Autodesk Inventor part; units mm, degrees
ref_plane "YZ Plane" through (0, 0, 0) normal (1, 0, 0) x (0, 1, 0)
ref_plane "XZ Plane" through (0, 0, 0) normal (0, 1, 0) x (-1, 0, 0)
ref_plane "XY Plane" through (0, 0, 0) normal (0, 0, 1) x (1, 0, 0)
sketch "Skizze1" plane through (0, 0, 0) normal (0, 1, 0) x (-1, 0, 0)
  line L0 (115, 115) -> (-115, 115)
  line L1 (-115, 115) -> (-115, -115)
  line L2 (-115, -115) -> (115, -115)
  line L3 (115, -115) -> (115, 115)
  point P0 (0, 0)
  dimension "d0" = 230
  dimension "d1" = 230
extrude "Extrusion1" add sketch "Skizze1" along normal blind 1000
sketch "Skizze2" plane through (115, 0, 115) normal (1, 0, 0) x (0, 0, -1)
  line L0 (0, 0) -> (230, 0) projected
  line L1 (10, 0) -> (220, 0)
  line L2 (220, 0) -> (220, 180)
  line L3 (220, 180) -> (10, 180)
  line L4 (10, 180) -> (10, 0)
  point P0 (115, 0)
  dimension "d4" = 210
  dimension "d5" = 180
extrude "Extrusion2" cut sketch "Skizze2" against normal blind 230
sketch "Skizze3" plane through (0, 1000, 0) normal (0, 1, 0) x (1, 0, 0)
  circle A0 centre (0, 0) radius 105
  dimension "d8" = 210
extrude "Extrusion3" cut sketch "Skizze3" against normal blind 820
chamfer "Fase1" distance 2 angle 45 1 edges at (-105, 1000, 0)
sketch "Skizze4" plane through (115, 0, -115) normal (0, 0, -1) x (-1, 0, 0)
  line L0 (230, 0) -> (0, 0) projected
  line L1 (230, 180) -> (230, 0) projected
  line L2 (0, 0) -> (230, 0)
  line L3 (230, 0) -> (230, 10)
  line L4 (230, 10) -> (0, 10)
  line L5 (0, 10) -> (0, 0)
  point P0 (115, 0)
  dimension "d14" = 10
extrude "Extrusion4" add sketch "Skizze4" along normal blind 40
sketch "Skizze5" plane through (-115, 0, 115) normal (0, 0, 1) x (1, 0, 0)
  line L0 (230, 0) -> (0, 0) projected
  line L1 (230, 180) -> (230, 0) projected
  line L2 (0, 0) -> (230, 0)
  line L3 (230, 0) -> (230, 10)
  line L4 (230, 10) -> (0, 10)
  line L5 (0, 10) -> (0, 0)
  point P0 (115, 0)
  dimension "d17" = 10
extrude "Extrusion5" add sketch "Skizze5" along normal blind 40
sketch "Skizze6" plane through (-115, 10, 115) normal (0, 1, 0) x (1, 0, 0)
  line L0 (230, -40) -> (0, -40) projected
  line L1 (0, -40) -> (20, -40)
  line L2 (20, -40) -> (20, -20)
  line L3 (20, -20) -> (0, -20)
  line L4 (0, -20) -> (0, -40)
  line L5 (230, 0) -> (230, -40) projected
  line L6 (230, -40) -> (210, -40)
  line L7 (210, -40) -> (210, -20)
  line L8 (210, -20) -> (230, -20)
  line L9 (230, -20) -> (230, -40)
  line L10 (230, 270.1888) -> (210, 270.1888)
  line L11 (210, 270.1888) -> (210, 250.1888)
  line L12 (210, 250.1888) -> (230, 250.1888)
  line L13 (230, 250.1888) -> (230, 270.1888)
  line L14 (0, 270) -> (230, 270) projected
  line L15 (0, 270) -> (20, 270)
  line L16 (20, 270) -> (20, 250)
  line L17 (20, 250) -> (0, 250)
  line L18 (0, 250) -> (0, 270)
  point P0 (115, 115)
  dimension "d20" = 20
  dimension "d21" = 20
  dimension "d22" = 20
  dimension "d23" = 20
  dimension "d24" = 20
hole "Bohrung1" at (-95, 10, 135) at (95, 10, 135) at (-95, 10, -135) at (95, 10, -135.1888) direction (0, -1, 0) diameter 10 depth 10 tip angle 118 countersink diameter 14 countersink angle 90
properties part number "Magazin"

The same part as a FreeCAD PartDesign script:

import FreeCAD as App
import Part
import Sketcher
Q = App.Units.Quantity


def edges_at(feature, points):
    """Names of the edges that pass closest to the given points."""
    edges = feature.Shape.Edges
    near = lambda p: min(range(len(edges)), key=lambda i: edges[i].distToShape(Part.Vertex(*p))[0])
    return sorted({f"Edge{near(p) + 1}" for p in points})


def add_polygon(sketch, points):
    """Adds a closed chain of lines whose ends are joined by coincident constraints."""
    first, n = sketch.GeometryCount, len(points)
    for a, b in zip(points, points[1:] + points[:1]):
        sketch.addGeometry(Part.LineSegment(App.Vector(*a, 0), App.Vector(*b, 0)), False)
    for i in range(n):
        sketch.addConstraint(Sketcher.Constraint("Coincident", first + i, 2, first + (i + 1) % n, 1))

doc = App.newDocument("Part")
params = doc.addObject("Spreadsheet::Sheet", "Params")
for row, (alias, value) in enumerate([
    ("sketch1_width", "230 mm"),
    ("pad1_length", "1000 mm"),
    ("sketch2_width", "180 mm"),
    ("sketch2_height", "210 mm"),
    ("pocket1_length", "230 mm"),
    ("sketch3_diameter", "210 mm"),
    ("pocket2_length", "820 mm"),
    ("chamfer_size", "2 mm"),
    ("sketch4_height", "10 mm"),
    ("sketch4_width", "230 mm"),
    ("pad2_length", "40 mm"),
    ("sketch5_height", "10 mm"),
    ("sketch5_width", "230 mm"),
    ("pad3_length", "40 mm"),
    ("sketch6_diameter", "10 mm"),
    ("hole_diameter", "10 mm"),
    ("hole_depth", "10 mm"),
    ("hole_csink_diameter", "14 mm"),
], start=1):
    params.set(f"A{row}", alias)
    params.set(f"B{row}", "=" + value)
    params.setAlias(f"B{row}", alias)

body = doc.addObject("PartDesign::Body", "Body")

sketch1 = body.newObject("Sketcher::SketchObject", "Sketch")
sketch1.AttachmentSupport = (doc.getObject("XZ_Plane"), [""])
sketch1.MapMode = "FlatFace"
add_polygon(sketch1, [(-115, -115), (-115, 115), (115, 115), (115, -115)])
sketch1.addConstraint(Sketcher.Constraint("Vertical", 0))
sketch1.addConstraint(Sketcher.Constraint("Horizontal", 1))
sketch1.addConstraint(Sketcher.Constraint("Vertical", 2))
sketch1.addConstraint(Sketcher.Constraint("Horizontal", 3))
sketch1.addConstraint(Sketcher.Constraint("Symmetric", 0, 2, 2, 2, -1, 1))
sketch1.addConstraint(Sketcher.Constraint("Equal", 3, 0))
sketch1.addConstraint(Sketcher.Constraint("DistanceX", 1, 1, 1, 2, Q("230 mm")))
sketch1.setExpression("Constraints[10]", "Params.sketch1_width")
pad1 = body.newObject("PartDesign::Pad", "Pad")
pad1.Profile = sketch1
pad1.setExpression("Length", "Params.pad1_length")
pad1.Reversed = True

sketch2 = body.newObject("Sketcher::SketchObject", "Sketch001")
sketch2.AttachmentSupport = (doc.getObject("YZ_Plane"), [""])
sketch2.MapMode = "FlatFace"
sketch2.AttachmentOffset = App.Placement(App.Vector(0, 0, 115), App.Rotation())
add_polygon(sketch2, [(180, 105), (0, 105), (0, -105), (180, -105)])
sketch2.addConstraint(Sketcher.Constraint("Horizontal", 0))
sketch2.addConstraint(Sketcher.Constraint("Vertical", 1))
sketch2.addConstraint(Sketcher.Constraint("Horizontal", 2))
sketch2.addConstraint(Sketcher.Constraint("Vertical", 3))
sketch2.addConstraint(Sketcher.Constraint("Symmetric", 0, 2, 1, 2, -1, 1))
sketch2.addConstraint(Sketcher.Constraint("DistanceX", 0, 2, 0, 1, Q("180 mm")))
sketch2.addConstraint(Sketcher.Constraint("DistanceY", 1, 2, 1, 1, Q("210 mm")))
sketch2.setExpression("Constraints[9]", "Params.sketch2_width")
sketch2.setExpression("Constraints[10]", "Params.sketch2_height")
pocket1 = body.newObject("PartDesign::Pocket", "Pocket")
pocket1.Profile = sketch2
pocket1.setExpression("Length", "Params.pocket1_length")

sketch3 = body.newObject("Sketcher::SketchObject", "Sketch002")
sketch3.AttachmentSupport = (doc.getObject("XZ_Plane"), [""])
sketch3.MapMode = "FlatFace"
sketch3.AttachmentOffset = App.Placement(App.Vector(0, 0, -1000), App.Rotation())
sketch3.addGeometry(Part.Circle(App.Vector(0, 0, 0), App.Vector(0, 0, 1), 105), False)
sketch3.addConstraint(Sketcher.Constraint("Coincident", 0, 3, -1, 1))
sketch3.addConstraint(Sketcher.Constraint("Diameter", 0, Q("210 mm")))
sketch3.setExpression("Constraints[1]", "Params.sketch3_diameter")
pocket2 = body.newObject("PartDesign::Pocket", "Pocket001")
pocket2.Profile = sketch3
pocket2.setExpression("Length", "Params.pocket2_length")
pocket2.Reversed = True
doc.recompute()

chamfer = body.newObject("PartDesign::Chamfer", "Chamfer")
chamfer.Base = (pocket2, edges_at(pocket2, [(-105, 1000, 0)]))
chamfer.setExpression("Size", "Params.chamfer_size")

sketch4 = body.newObject("Sketcher::SketchObject", "Sketch003")
sketch4.AttachmentSupport = (doc.getObject("XY_Plane"), [""])
sketch4.MapMode = "FlatFace"
sketch4.AttachmentOffset = App.Placement(App.Vector(0, 0, -115), App.Rotation())
add_polygon(sketch4, [(115, 0), (-115, 0), (-115, 10), (115, 10)])
sketch4.addConstraint(Sketcher.Constraint("Horizontal", 0))
sketch4.addConstraint(Sketcher.Constraint("Vertical", 1))
sketch4.addConstraint(Sketcher.Constraint("Horizontal", 2))
sketch4.addConstraint(Sketcher.Constraint("Vertical", 3))
sketch4.addConstraint(Sketcher.Constraint("Symmetric", 0, 2, 3, 2, -1, 1))
sketch4.addConstraint(Sketcher.Constraint("DistanceY", 1, 1, 1, 2, Q("10 mm")))
sketch4.addConstraint(Sketcher.Constraint("DistanceX", 0, 2, 0, 1, Q("230 mm")))
sketch4.setExpression("Constraints[9]", "Params.sketch4_height")
sketch4.setExpression("Constraints[10]", "Params.sketch4_width")
pad2 = body.newObject("PartDesign::Pad", "Pad001")
pad2.Profile = sketch4
pad2.setExpression("Length", "Params.pad2_length")
pad2.Reversed = True

sketch5 = body.newObject("Sketcher::SketchObject", "Sketch004")
sketch5.AttachmentSupport = (doc.getObject("XY_Plane"), [""])
sketch5.MapMode = "FlatFace"
sketch5.AttachmentOffset = App.Placement(App.Vector(0, 0, 115), App.Rotation())
add_polygon(sketch5, [(-115, 0), (115, 0), (115, 10), (-115, 10)])
sketch5.addConstraint(Sketcher.Constraint("Horizontal", 0))
sketch5.addConstraint(Sketcher.Constraint("Vertical", 1))
sketch5.addConstraint(Sketcher.Constraint("Horizontal", 2))
sketch5.addConstraint(Sketcher.Constraint("Vertical", 3))
sketch5.addConstraint(Sketcher.Constraint("Symmetric", 0, 2, 3, 2, -1, 1))
sketch5.addConstraint(Sketcher.Constraint("DistanceY", 1, 1, 1, 2, Q("10 mm")))
sketch5.addConstraint(Sketcher.Constraint("DistanceX", 0, 1, 0, 2, Q("230 mm")))
sketch5.setExpression("Constraints[9]", "Params.sketch5_height")
sketch5.setExpression("Constraints[10]", "Params.sketch5_width")
pad3 = body.newObject("PartDesign::Pad", "Pad002")
pad3.Profile = sketch5
pad3.setExpression("Length", "Params.pad3_length")

sketch6 = body.newObject("Sketcher::SketchObject", "Sketch005")
sketch6.AttachmentSupport = (doc.getObject("XZ_Plane"), [""])
sketch6.MapMode = "FlatFace"
sketch6.AttachmentOffset = App.Placement(App.Vector(0, 0, -10), App.Rotation())
sketch6.addGeometry(Part.Circle(App.Vector(-95, 135, 0), App.Vector(0, 0, 1), 5), False)
sketch6.addGeometry(Part.Circle(App.Vector(95, 135, 0), App.Vector(0, 0, 1), 5), False)
sketch6.addGeometry(Part.Circle(App.Vector(-95, -135, 0), App.Vector(0, 0, 1), 5), False)
sketch6.addGeometry(Part.Circle(App.Vector(95, -135.1888, 0), App.Vector(0, 0, 1), 5), False)
sketch6.addConstraint(Sketcher.Constraint("Equal", 0, 1))
sketch6.addConstraint(Sketcher.Constraint("Equal", 1, 2))
sketch6.addConstraint(Sketcher.Constraint("Equal", 2, 3))
sketch6.addConstraint(Sketcher.Constraint("Symmetric", 1, 3, 2, 3, -1, 1))
sketch6.addConstraint(Sketcher.Constraint("Symmetric", 0, 3, 1, 3, -2))
sketch6.addConstraint(Sketcher.Constraint("Vertical", 1, 3, 3, 3))
sketch6.addConstraint(Sketcher.Constraint("Diameter", 0, Q("10 mm")))
sketch6.addConstraint(Sketcher.Constraint("DistanceX", 0, 3, -1, 1, Q("95 mm")))
sketch6.addConstraint(Sketcher.Constraint("DistanceY", -1, 1, 0, 3, Q("135 mm")))
sketch6.addConstraint(Sketcher.Constraint("DistanceY", 3, 3, -1, 1, Q("135.1888 mm")))
sketch6.setExpression("Constraints[6]", "Params.sketch6_diameter")
doc.recompute()
hole = body.newObject("PartDesign::Hole", "Hole")
hole.Profile = sketch6
hole.ThreadType = "None"
hole.setExpression("Diameter", "Params.hole_diameter")
hole.DepthType = "Dimension"
hole.setExpression("Depth", "Params.hole_depth")
hole.DrillPoint = "Angled"
hole.DrillPointAngle = 118
hole.HoleCutType = "Countersink"
hole.setExpression("HoleCutDiameter", "Params.hole_csink_diameter")
hole.HoleCutCountersinkAngle = 90
hole.Reversed = True

doc.recompute()
